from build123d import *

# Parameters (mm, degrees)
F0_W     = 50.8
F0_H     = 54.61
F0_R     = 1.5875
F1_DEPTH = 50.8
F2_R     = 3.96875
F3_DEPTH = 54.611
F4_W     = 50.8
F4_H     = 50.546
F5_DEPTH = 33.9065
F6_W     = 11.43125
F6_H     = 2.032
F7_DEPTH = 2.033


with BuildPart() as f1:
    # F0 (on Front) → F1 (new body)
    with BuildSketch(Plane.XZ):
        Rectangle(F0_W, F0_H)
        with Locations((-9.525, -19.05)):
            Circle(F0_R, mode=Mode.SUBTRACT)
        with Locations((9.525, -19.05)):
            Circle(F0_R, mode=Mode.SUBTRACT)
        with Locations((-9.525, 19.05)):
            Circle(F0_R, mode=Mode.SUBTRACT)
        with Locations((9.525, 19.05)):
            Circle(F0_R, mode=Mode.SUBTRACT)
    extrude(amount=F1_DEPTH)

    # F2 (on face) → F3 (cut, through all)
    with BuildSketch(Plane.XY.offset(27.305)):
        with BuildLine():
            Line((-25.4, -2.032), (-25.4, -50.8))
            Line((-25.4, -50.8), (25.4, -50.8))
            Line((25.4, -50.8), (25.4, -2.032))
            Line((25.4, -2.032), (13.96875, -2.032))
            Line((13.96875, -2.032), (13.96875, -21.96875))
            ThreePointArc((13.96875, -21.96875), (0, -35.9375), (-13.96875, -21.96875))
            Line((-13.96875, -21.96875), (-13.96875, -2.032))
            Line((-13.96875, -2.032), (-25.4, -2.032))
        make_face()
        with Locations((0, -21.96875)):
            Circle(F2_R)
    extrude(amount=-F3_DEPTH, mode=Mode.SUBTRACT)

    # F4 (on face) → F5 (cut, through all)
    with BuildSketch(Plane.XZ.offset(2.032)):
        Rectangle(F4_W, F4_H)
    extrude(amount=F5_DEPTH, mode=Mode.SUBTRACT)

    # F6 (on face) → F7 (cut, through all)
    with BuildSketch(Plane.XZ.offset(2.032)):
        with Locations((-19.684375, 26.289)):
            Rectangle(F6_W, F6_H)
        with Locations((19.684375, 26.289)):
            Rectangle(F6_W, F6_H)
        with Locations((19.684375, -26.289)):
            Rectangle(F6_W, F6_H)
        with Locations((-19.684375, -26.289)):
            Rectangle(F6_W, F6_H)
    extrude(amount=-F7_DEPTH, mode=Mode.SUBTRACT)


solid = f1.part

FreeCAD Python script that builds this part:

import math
import FreeCAD as App
import Part
import Sketcher
Q = App.Units.Quantity

doc = App.newDocument("Part")
body = doc.addObject("PartDesign::Body", "Body")

sketch1 = body.newObject("Sketcher::SketchObject", "Sketch")
sketch1.AttachmentSupport = (doc.getObject("XZ_Plane"), [""])
sketch1.MapMode = "FlatFace"
sketch1.addGeometry([
    Part.LineSegment(App.Vector(-25.4, 27.3, 0), App.Vector(-25.4, -27.3, 0)),
    Part.LineSegment(App.Vector(-25.4, -27.3, 0), App.Vector(25.4, -27.3, 0)),
    Part.LineSegment(App.Vector(25.4, -27.3, 0), App.Vector(25.4, 27.3, 0)),
    Part.LineSegment(App.Vector(25.4, 27.3, 0), App.Vector(-25.4, 27.3, 0)),
    Part.Circle(App.Vector(-9.5, -19.1, 0), App.Vector(0, 0, 1), 1.6),
    Part.Circle(App.Vector(9.5, -19.1, 0), App.Vector(0, 0, 1), 1.6),
    Part.Circle(App.Vector(-9.5, 19.1, 0), App.Vector(0, 0, 1), 1.6),
    Part.Circle(App.Vector(9.5, 19.1, 0), App.Vector(0, 0, 1), 1.6),
], False)
sketch1.addConstraint([
    Sketcher.Constraint("Coincident", 0, 2, 1, 1),
    Sketcher.Constraint("Coincident", 1, 2, 2, 1),
    Sketcher.Constraint("Coincident", 2, 2, 3, 1),
    Sketcher.Constraint("Coincident", 3, 2, 0, 1),
    Sketcher.Constraint("Vertical", 0),
    Sketcher.Constraint("Horizontal", 1),
    Sketcher.Constraint("Vertical", 2),
    Sketcher.Constraint("Horizontal", 3),
    Sketcher.Constraint("Equal", 4, 5),
    Sketcher.Constraint("Equal", 5, 6),
    Sketcher.Constraint("Equal", 6, 7),
    Sketcher.Constraint("Symmetric", 5, 3, 6, 3, -1, 1),
    Sketcher.Constraint("Symmetric", 4, 3, 7, 3, -1, 1),
    Sketcher.Constraint("Symmetric", 0, 2, 2, 2, -1, 1),
    Sketcher.Constraint("Symmetric", 4, 3, 5, 3, -2),
    Sketcher.Constraint("DistanceX", 1, 1, 1, 2, Q("2 in")),
    Sketcher.Constraint("Diameter", 4, Q("0.125 in")),
    Sketcher.Constraint("DistanceY", 0, 2, 0, 1, Q("2.15 in")),
    Sketcher.Constraint("DistanceY", 4, 3, 6, 3, Q("1.5 in")),
    Sketcher.Constraint("DistanceX", 4, 3, 5, 3, Q("0.75 in")),
])
pad1 = body.newObject("PartDesign::Pad", "Pad")
pad1.Profile = sketch1
pad1.Length = Q("2 in")

sketch2 = body.newObject("Sketcher::SketchObject", "Sketch001")
sketch2.AttachmentSupport = (doc.getObject("XY_Plane"), [""])
sketch2.MapMode = "FlatFace"
sketch2.AttachmentOffset = App.Placement(App.Vector(0, 0, 1.075 * 25.4), App.Rotation())
sketch2.addGeometry([
    Part.LineSegment(App.Vector(-25.4, -2, 0), App.Vector(-25.4, -50.8, 0)),
    Part.LineSegment(App.Vector(-25.4, -50.8, 0), App.Vector(25.4, -50.8, 0)),
    Part.LineSegment(App.Vector(25.4, -50.8, 0), App.Vector(25.4, -2, 0)),
    Part.LineSegment(App.Vector(25.4, -2, 0), App.Vector(14, -2, 0)),
    Part.LineSegment(App.Vector(14, -2, 0), App.Vector(14, -22, 0)),
    Part.ArcOfCircle(Part.Circle(App.Vector(0, -22, 0), App.Vector(0, 0, 1), 14), math.radians(180), math.radians(360)),
    Part.LineSegment(App.Vector(-14, -22, 0), App.Vector(-14, -2, 0)),
    Part.LineSegment(App.Vector(-14, -2, 0), App.Vector(-25.4, -2, 0)),
    Part.Circle(App.Vector(0, -22, 0), App.Vector(0, 0, 1), 4),
], False)
sketch2.addConstraint([
    Sketcher.Constraint("Coincident", 0, 2, 1, 1),
    Sketcher.Constraint("Coincident", 1, 2, 2, 1),
    Sketcher.Constraint("Coincident", 2, 2, 3, 1),
    Sketcher.Constraint("Coincident", 3, 2, 4, 1),
    Sketcher.Constraint("Tangent", 4, 2, 5, 2),
    Sketcher.Constraint("Tangent", 5, 1, 6, 1),
    Sketcher.Constraint("Coincident", 6, 2, 7, 1),
    Sketcher.Constraint("Coincident", 7, 2, 0, 1),
    Sketcher.Constraint("Vertical", 0),
    Sketcher.Constraint("Horizontal", 1),
    Sketcher.Constraint("Vertical", 2),
    Sketcher.Constraint("Horizontal", 3),
    Sketcher.Constraint("Vertical", 4),
    Sketcher.Constraint("Vertical", 6),
    Sketcher.Constraint("Horizontal", 7),
    Sketcher.Constraint("Coincident", 8, 3, 5, 3),
    Sketcher.Constraint("Symmetric", 3, 2, 6, 2, -2),
    Sketcher.Constraint("Equal", 3, 7),
    Sketcher.Constraint("DistanceX", 1, 1, 1, 2, Q("2 in")),
    Sketcher.Constraint("Diameter", 8, Q("0.3125 in")),
    Sketcher.Constraint("DistanceY", 0, 2, -1, 1, Q("2 in")),
    Sketcher.Constraint("DistanceY", 0, 2, 0, 1, Q("1.92 in")),
    Sketcher.Constraint("Radius", 5, 13.96875),
    Sketcher.Constraint("DistanceY", 4, 2, 4, 1, 19.93675),
])
pocket1 = body.newObject("PartDesign::Pocket", "Pocket")
pocket1.Profile = sketch2
pocket1.Type = "ThroughAll"

sketch3 = body.newObject("Sketcher::SketchObject", "Sketch002")
sketch3.AttachmentSupport = (doc.getObject("XZ_Plane"), [""])
sketch3.MapMode = "FlatFace"
sketch3.AttachmentOffset = App.Placement(App.Vector(0, 0, 0.08 * 25.4), App.Rotation())
sketch3.addGeometry([
    Part.LineSegment(App.Vector(-25, 25, 0), App.Vector(-25, -25, 0)),
    Part.LineSegment(App.Vector(-25, -25, 0), App.Vector(25, -25, 0)),
    Part.LineSegment(App.Vector(25, -25, 0), App.Vector(25, 25, 0)),
    Part.LineSegment(App.Vector(25, 25, 0), App.Vector(-25, 25, 0)),
], False)
sketch3.addConstraint([
    Sketcher.Constraint("Coincident", 0, 2, 1, 1),
    Sketcher.Constraint("Coincident", 1, 2, 2, 1),
    Sketcher.Constraint("Coincident", 2, 2, 3, 1),
    Sketcher.Constraint("Coincident", 3, 2, 0, 1),
    Sketcher.Constraint("Vertical", 0),
    Sketcher.Constraint("Horizontal", 1),
    Sketcher.Constraint("Vertical", 2),
    Sketcher.Constraint("Horizontal", 3),
    Sketcher.Constraint("Symmetric", 0, 2, 2, 2, -1, 1),
    Sketcher.Constraint("DistanceX", 1, 1, 1, 2, Q("2 in")),
    Sketcher.Constraint("DistanceY", 0, 2, 0, 1, Q("1.99 in")),
])
pocket2 = body.newObject("PartDesign::Pocket", "Pocket001")
pocket2.Profile = sketch3
pocket2.Type = "ThroughAll"
pocket2.Reversed = True

sketch4 = body.newObject("Sketcher::SketchObject", "Sketch003")
sketch4.AttachmentSupport = (doc.getObject("XZ_Plane"), [""])
sketch4.MapMode = "FlatFace"
sketch4.AttachmentOffset = App.Placement(App.Vector(0, 0, 0.08 * 25.4), App.Rotation())
sketch4.addGeometry([
    Part.LineSegment(App.Vector(-25.4, 27.3, 0), App.Vector(-25.4, 25.3, 0)),
    Part.LineSegment(App.Vector(-25.4, 25.3, 0), App.Vector(-14, 25.3, 0)),
    Part.LineSegment(App.Vector(-14, 25.3, 0), App.Vector(-14, 27.3, 0)),
    Part.LineSegment(App.Vector(-14, 27.3, 0), App.Vector(-25.4, 27.3, 0)),
    Part.LineSegment(App.Vector(14, 27.3, 0), App.Vector(14, 25.3, 0)),
    Part.LineSegment(App.Vector(14, 25.3, 0), App.Vector(25.4, 25.3, 0)),
    Part.LineSegment(App.Vector(25.4, 25.3, 0), App.Vector(25.4, 27.3, 0)),
    Part.LineSegment(App.Vector(25.4, 27.3, 0), App.Vector(14, 27.3, 0)),
    Part.LineSegment(App.Vector(14, -25.3, 0), App.Vector(14, -27.3, 0)),
    Part.LineSegment(App.Vector(14, -27.3, 0), App.Vector(25.4, -27.3, 0)),
    Part.LineSegment(App.Vector(25.4, -27.3, 0), App.Vector(25.4, -25.3, 0)),
    Part.LineSegment(App.Vector(25.4, -25.3, 0), App.Vector(14, -25.3, 0)),
    Part.LineSegment(App.Vector(-25.4, -25.3, 0), App.Vector(-25.4, -27.3, 0)),
    Part.LineSegment(App.Vector(-25.4, -27.3, 0), App.Vector(-14, -27.3, 0)),
    Part.LineSegment(App.Vector(-14, -27.3, 0), App.Vector(-14, -25.3, 0)),
    Part.LineSegment(App.Vector(-14, -25.3, 0), App.Vector(-25.4, -25.3, 0)),
], False)
sketch4.addConstraint([
    Sketcher.Constraint("Coincident", 0, 2, 1, 1),
    Sketcher.Constraint("Coincident", 1, 2, 2, 1),
    Sketcher.Constraint("Coincident", 2, 2, 3, 1),
    Sketcher.Constraint("Coincident", 3, 2, 0, 1),
    Sketcher.Constraint("Coincident", 4, 2, 5, 1),
    Sketcher.Constraint("Coincident", 5, 2, 6, 1),
    Sketcher.Constraint("Coincident", 6, 2, 7, 1),
    Sketcher.Constraint("Coincident", 7, 2, 4, 1),
    Sketcher.Constraint("Coincident", 8, 2, 9, 1),
    Sketcher.Constraint("Coincident", 9, 2, 10, 1),
    Sketcher.Constraint("Coincident", 10, 2, 11, 1),
    Sketcher.Constraint("Coincident", 11, 2, 8, 1),
    Sketcher.Constraint("Coincident", 12, 2, 13, 1),
    Sketcher.Constraint("Coincident", 13, 2, 14, 1),
    Sketcher.Constraint("Coincident", 14, 2, 15, 1),
    Sketcher.Constraint("Coincident", 15, 2, 12, 1),
    Sketcher.Constraint("Vertical", 0),
    Sketcher.Constraint("Horizontal", 1),
    Sketcher.Constraint("Vertical", 2),
    Sketcher.Constraint("Horizontal", 3),
    Sketcher.Constraint("Vertical", 4),
    Sketcher.Constraint("Horizontal", 5),
    Sketcher.Constraint("Vertical", 6),
    Sketcher.Constraint("Horizontal", 7),
    Sketcher.Constraint("Vertical", 8),
    Sketcher.Constraint("Horizontal", 9),
    Sketcher.Constraint("Vertical", 10),
    Sketcher.Constraint("Horizontal", 11),
    Sketcher.Constraint("Vertical", 12),
    Sketcher.Constraint("Horizontal", 13),
    Sketcher.Constraint("Vertical", 14),
    Sketcher.Constraint("Horizontal", 15),
    Sketcher.Constraint("Symmetric", 2, 2, 8, 2, -1, 1),
    Sketcher.Constraint("Symmetric", 0, 2, 10, 2, -1, 1),
    Sketcher.Constraint("Symmetric", 6, 2, 12, 2, -1, 1),
    Sketcher.Constraint("Symmetric", 4, 2, 14, 2, -1, 1),
    Sketcher.Constraint("Symmetric", 1, 2, 4, 2, -2),
    Sketcher.Constraint("Symmetric", 3, 2, 6, 2, -2),
    Sketcher.Constraint("DistanceX", 0, 2, -1, 1, Q("1 in")),
    Sketcher.Constraint("DistanceY", 0, 2, 0, 1, Q("0.08 in")),
    Sketcher.Constraint("DistanceY", 8, 2, 4, 2, Q("2.07 in")),
    Sketcher.Constraint("DistanceX", 1, 1, 1, 2, 11.43125),
])
pocket3 = body.newObject("PartDesign::Pocket", "Pocket002")
pocket3.Profile = sketch4
pocket3.Type = "ThroughAll"

doc.recompute()
